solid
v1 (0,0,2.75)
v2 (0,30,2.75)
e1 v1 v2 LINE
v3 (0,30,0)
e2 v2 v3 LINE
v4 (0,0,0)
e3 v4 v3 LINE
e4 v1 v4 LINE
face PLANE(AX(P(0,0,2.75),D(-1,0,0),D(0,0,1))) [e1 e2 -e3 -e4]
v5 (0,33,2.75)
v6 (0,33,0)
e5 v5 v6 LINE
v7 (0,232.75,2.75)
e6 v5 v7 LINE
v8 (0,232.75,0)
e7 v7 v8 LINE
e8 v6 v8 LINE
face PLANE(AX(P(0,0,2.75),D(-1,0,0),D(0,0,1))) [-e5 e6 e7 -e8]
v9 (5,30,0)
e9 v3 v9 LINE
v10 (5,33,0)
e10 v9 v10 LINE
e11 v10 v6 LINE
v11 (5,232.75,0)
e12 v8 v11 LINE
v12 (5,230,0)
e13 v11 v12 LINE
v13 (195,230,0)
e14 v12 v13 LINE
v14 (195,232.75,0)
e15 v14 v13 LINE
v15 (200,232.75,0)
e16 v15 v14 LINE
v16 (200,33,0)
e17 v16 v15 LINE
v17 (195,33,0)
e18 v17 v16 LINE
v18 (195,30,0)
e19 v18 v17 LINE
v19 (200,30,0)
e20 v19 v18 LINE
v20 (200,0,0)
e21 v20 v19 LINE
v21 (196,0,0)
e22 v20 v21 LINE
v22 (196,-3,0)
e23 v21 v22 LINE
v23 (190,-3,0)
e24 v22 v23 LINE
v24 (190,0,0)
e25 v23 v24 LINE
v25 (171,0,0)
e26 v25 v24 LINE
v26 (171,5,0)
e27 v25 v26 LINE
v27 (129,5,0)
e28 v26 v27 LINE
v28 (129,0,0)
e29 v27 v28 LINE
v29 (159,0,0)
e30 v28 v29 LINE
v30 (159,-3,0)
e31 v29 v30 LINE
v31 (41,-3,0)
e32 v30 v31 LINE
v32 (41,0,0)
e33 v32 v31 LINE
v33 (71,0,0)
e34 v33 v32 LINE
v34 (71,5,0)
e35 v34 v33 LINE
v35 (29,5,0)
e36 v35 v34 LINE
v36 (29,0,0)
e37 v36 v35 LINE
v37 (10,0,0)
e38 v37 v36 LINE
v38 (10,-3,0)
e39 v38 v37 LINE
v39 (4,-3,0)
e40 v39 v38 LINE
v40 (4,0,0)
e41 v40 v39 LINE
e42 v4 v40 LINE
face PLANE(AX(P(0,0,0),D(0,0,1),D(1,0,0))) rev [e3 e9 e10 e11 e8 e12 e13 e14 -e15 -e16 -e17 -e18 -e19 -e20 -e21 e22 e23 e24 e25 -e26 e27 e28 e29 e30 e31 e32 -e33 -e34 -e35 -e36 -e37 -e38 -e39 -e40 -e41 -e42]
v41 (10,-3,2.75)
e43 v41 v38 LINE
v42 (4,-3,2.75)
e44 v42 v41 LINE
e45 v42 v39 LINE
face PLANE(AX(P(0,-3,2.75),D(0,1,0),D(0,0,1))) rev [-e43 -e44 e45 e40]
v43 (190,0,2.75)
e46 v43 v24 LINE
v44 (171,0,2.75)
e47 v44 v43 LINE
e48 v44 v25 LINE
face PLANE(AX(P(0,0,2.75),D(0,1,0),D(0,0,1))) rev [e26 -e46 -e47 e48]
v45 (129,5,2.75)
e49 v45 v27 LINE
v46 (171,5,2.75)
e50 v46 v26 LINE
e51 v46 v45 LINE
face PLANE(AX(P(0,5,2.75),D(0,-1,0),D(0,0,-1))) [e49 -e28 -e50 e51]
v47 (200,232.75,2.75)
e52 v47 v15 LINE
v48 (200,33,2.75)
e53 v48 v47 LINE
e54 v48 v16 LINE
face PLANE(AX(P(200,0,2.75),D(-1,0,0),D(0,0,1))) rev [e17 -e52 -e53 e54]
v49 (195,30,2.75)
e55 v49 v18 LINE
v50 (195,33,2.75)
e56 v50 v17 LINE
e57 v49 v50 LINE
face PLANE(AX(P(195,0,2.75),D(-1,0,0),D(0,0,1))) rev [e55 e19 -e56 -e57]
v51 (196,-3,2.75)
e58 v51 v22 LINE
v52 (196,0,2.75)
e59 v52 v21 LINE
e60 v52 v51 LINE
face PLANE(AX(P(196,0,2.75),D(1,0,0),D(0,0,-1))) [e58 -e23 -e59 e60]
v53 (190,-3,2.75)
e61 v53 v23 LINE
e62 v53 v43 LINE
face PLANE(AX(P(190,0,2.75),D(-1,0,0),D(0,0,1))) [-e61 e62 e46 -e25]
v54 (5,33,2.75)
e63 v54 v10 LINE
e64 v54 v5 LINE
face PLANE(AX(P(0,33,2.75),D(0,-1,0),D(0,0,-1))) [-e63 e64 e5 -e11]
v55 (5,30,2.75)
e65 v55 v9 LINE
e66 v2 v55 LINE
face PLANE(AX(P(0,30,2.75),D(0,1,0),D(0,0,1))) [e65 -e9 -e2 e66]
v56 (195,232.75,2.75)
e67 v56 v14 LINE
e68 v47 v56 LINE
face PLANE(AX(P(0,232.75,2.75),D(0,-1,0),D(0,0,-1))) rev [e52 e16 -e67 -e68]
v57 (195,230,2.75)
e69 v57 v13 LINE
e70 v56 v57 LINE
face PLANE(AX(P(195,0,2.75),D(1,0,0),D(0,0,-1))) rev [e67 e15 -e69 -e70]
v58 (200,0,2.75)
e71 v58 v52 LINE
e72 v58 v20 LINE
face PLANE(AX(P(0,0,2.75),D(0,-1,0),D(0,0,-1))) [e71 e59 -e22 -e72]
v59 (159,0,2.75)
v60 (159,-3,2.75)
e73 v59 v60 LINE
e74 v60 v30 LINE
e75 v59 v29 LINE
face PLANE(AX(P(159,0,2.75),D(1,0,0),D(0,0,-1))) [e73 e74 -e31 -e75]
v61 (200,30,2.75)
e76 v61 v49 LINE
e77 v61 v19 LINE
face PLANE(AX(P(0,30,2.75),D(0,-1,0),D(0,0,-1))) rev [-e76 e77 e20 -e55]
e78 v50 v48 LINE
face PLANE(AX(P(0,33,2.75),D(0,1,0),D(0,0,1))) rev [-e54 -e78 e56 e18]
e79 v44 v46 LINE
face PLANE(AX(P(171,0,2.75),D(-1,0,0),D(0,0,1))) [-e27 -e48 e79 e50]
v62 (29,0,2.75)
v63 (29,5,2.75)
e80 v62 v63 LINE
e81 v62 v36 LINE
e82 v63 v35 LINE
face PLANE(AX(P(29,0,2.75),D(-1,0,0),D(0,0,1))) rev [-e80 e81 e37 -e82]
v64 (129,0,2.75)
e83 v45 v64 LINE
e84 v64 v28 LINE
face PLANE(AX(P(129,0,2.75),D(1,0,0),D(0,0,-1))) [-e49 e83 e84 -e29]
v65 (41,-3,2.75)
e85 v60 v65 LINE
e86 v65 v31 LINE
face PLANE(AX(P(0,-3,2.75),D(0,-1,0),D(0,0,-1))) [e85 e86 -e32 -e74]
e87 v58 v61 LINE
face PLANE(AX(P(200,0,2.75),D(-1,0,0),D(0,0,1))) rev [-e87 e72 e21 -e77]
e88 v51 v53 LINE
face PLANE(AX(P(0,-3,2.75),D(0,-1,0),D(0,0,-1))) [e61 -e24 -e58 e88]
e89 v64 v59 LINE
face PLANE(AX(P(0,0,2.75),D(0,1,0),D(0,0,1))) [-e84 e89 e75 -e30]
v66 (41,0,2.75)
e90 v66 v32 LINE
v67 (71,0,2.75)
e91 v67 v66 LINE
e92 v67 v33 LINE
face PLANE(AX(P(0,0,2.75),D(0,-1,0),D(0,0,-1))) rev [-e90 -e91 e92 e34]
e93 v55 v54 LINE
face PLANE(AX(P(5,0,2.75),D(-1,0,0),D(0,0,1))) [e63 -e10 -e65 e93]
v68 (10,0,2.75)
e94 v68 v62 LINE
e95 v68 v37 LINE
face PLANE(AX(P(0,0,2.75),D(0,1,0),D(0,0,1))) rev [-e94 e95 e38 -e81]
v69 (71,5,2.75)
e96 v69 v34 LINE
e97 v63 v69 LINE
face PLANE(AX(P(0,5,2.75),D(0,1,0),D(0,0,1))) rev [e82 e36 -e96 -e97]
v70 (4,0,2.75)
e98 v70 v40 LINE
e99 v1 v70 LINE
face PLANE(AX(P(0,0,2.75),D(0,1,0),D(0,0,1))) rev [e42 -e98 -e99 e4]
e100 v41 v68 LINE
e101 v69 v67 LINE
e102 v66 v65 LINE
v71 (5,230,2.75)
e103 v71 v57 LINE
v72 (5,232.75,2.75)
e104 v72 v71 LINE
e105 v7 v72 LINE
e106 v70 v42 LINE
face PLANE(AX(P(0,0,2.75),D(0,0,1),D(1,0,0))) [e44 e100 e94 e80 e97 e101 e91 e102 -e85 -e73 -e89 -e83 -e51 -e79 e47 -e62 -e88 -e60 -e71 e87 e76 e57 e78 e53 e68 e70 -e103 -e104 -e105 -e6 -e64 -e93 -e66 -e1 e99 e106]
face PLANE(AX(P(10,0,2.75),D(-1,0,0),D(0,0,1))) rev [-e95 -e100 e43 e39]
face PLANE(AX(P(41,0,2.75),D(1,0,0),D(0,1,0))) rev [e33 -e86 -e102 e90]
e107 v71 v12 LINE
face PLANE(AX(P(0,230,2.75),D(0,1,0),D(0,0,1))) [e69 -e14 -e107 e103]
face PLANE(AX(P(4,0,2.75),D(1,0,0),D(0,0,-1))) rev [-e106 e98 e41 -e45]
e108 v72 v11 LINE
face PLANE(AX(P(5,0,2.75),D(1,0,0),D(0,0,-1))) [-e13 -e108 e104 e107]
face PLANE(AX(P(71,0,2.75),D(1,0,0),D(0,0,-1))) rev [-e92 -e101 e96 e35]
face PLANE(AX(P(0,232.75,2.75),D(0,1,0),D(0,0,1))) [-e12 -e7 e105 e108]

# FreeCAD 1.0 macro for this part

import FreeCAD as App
import Part
import Sketcher

V = App.Vector


def add_polygon(sketch, points):
    """Adds a closed chain of lines whose ends are joined by coincident constraints."""
    first, n = sketch.GeometryCount, len(points)
    for a, b in zip(points, points[1:] + points[:1]):
        sketch.addGeometry(Part.LineSegment(App.Vector(*a, 0), App.Vector(*b, 0)), False)
    for i in range(n):
        sketch.addConstraint(Sketcher.Constraint("Coincident", first + i, 2, first + (i + 1) % n, 1))

doc = App.newDocument("Part")
body = doc.addObject("PartDesign::Body", "Body")

# Sketch on XY plane
sketch1 = body.newObject("Sketcher::SketchObject", "Sketch")
sketch1.AttachmentSupport = (doc.getObject("XY_Plane"), [""])
sketch1.MapMode = "FlatFace"
add_polygon(sketch1, [(200, 0), (200, 30), (195, 30), (195, 33), (200, 33), (200, 232.75), (195, 232.75), (195, 230), (5, 230), (5, 232.75), (0, 232.75), (0, 33), (5, 33), (5, 30), (0, 30), (0, 0), (4, 0), (4, -3), (10, -3), (10, 0), (29, 0), (29, 5), (71, 5), (71, 0), (41, 0), (41, -3), (159, -3), (159, 0), (129, 0), (129, 5), (171, 5), (171, 0), (190, 0), (190, -3), (196, -3), (196, 0)])  # lines 0-35
sketch1.addConstraint(Sketcher.Constraint("Vertical", 0))
sketch1.addConstraint(Sketcher.Constraint("Horizontal", 1))
sketch1.addConstraint(Sketcher.Constraint("Vertical", 2))
sketch1.addConstraint(Sketcher.Constraint("Horizontal", 3))
sketch1.addConstraint(Sketcher.Constraint("Vertical", 4))
sketch1.addConstraint(Sketcher.Constraint("Horizontal", 5))
sketch1.addConstraint(Sketcher.Constraint("Vertical", 6))
sketch1.addConstraint(Sketcher.Constraint("Horizontal", 7))
sketch1.addConstraint(Sketcher.Constraint("Vertical", 8))
sketch1.addConstraint(Sketcher.Constraint("Horizontal", 9))
sketch1.addConstraint(Sketcher.Constraint("Vertical", 10))
sketch1.addConstraint(Sketcher.Constraint("Horizontal", 11))
sketch1.addConstraint(Sketcher.Constraint("Vertical", 12))
sketch1.addConstraint(Sketcher.Constraint("Horizontal", 13))
sketch1.addConstraint(Sketcher.Constraint("Vertical", 14))
sketch1.addConstraint(Sketcher.Constraint("Horizontal", 15))
sketch1.addConstraint(Sketcher.Constraint("Vertical", 16))
sketch1.addConstraint(Sketcher.Constraint("Horizontal", 17))
sketch1.addConstraint(Sketcher.Constraint("Vertical", 18))
sketch1.addConstraint(Sketcher.Constraint("Horizontal", 19))
sketch1.addConstraint(Sketcher.Constraint("Vertical", 20))
sketch1.addConstraint(Sketcher.Constraint("Horizontal", 21))
sketch1.addConstraint(Sketcher.Constraint("Vertical", 22))
sketch1.addConstraint(Sketcher.Constraint("Horizontal", 23))
sketch1.addConstraint(Sketcher.Constraint("Vertical", 24))
sketch1.addConstraint(Sketcher.Constraint("Horizontal", 25))
sketch1.addConstraint(Sketcher.Constraint("Vertical", 26))
sketch1.addConstraint(Sketcher.Constraint("Horizontal", 27))
sketch1.addConstraint(Sketcher.Constraint("Vertical", 28))
sketch1.addConstraint(Sketcher.Constraint("Horizontal", 29))
sketch1.addConstraint(Sketcher.Constraint("Vertical", 30))
sketch1.addConstraint(Sketcher.Constraint("Horizontal", 31))
sketch1.addConstraint(Sketcher.Constraint("Vertical", 32))
sketch1.addConstraint(Sketcher.Constraint("Horizontal", 33))
sketch1.addConstraint(Sketcher.Constraint("Vertical", 34))
sketch1.addConstraint(Sketcher.Constraint("Horizontal", 35))
sketch1.addConstraint(Sketcher.Constraint("Coincident", 14, 2, -1, 1))
sketch1.addConstraint(Sketcher.Constraint("PointOnObject", 9, 2, -2))
sketch1.addConstraint(Sketcher.Constraint("PointOnObject", 18, 2, -1))
sketch1.addConstraint(Sketcher.Constraint("PointOnObject", 22, 2, -1))
sketch1.addConstraint(Sketcher.Constraint("PointOnObject", 26, 2, -1))
sketch1.addConstraint(Sketcher.Constraint("PointOnObject", 30, 2, -1))
sketch1.addConstraint(Sketcher.Constraint("PointOnObject", 34, 2, -1))
sketch1.addConstraint(Sketcher.Constraint("Horizontal", 5, 2, 8, 2))
sketch1.addConstraint(Sketcher.Constraint("Horizontal", 3, 2, 10, 2))
sketch1.addConstraint(Sketcher.Constraint("Horizontal", 1, 2, 12, 2))
sketch1.addConstraint(Sketcher.Constraint("Horizontal", 17, 2, 24, 2))
sketch1.addConstraint(Sketcher.Constraint("Horizontal", 21, 2, 28, 2))
sketch1.addConstraint(Sketcher.Constraint("Horizontal", 25, 2, 32, 2))
sketch1.addConstraint(Sketcher.Constraint("Vertical", 0, 2, 3, 2))
sketch1.addConstraint(Sketcher.Constraint("Vertical", 2, 2, 5, 2))
sketch1.addConstraint(Sketcher.Constraint("Vertical", 8, 2, 11, 2))
sketch1.addConstraint(Sketcher.Constraint("Equal", 5, 9))
sketch1.addConstraint(Sketcher.Constraint("Equal", 23, 27))
sketch1.addConstraint(Sketcher.Constraint("Equal", 21, 29))
sketch1.addConstraint(Sketcher.Constraint("Equal", 19, 31))
sketch1.addConstraint(Sketcher.Constraint("Equal", 17, 33))
sketch1.addConstraint(Sketcher.Constraint("Equal", 15, 35))
sketch1.addConstraint(Sketcher.Constraint("Equal", 27, 0))
sketch1.addConstraint(Sketcher.Constraint("Equal", 12, 16))
sketch1.addConstraint(Sketcher.Constraint("Equal", 13, 20))
sketch1.addConstraint(Sketcher.Constraint("DistanceX", 1, 2, 1, 1, 5.0))
sketch1.addConstraint(Sketcher.Constraint("DistanceX", 7, 2, 7, 1, 190.0))
sketch1.addConstraint(Sketcher.Constraint("DistanceX", 15, 1, 15, 2, 4.0))
sketch1.addConstraint(Sketcher.Constraint("DistanceX", 17, 1, 17, 2, 6.0))
sketch1.addConstraint(Sketcher.Constraint("DistanceX", 19, 1, 19, 2, 19.0))
sketch1.addConstraint(Sketcher.Constraint("DistanceX", 21, 1, 21, 2, 42.0))
sketch1.addConstraint(Sketcher.Constraint("DistanceX", 23, 2, 23, 1, 30.0))
sketch1.addConstraint(Sketcher.Constraint("DistanceY", 2, 1, 2, 2, 3.0))
sketch1.addConstraint(Sketcher.Constraint("DistanceY", -1, 1, 6, 2, 230.0))
sketch1.addConstraint(Sketcher.Constraint("DistanceY", 4, 1, 4, 2, 199.75))
pad1 = body.newObject("PartDesign::Pad", "Pad")
pad1.Profile = sketch1
pad1.Length = 2.75

doc.recompute()
